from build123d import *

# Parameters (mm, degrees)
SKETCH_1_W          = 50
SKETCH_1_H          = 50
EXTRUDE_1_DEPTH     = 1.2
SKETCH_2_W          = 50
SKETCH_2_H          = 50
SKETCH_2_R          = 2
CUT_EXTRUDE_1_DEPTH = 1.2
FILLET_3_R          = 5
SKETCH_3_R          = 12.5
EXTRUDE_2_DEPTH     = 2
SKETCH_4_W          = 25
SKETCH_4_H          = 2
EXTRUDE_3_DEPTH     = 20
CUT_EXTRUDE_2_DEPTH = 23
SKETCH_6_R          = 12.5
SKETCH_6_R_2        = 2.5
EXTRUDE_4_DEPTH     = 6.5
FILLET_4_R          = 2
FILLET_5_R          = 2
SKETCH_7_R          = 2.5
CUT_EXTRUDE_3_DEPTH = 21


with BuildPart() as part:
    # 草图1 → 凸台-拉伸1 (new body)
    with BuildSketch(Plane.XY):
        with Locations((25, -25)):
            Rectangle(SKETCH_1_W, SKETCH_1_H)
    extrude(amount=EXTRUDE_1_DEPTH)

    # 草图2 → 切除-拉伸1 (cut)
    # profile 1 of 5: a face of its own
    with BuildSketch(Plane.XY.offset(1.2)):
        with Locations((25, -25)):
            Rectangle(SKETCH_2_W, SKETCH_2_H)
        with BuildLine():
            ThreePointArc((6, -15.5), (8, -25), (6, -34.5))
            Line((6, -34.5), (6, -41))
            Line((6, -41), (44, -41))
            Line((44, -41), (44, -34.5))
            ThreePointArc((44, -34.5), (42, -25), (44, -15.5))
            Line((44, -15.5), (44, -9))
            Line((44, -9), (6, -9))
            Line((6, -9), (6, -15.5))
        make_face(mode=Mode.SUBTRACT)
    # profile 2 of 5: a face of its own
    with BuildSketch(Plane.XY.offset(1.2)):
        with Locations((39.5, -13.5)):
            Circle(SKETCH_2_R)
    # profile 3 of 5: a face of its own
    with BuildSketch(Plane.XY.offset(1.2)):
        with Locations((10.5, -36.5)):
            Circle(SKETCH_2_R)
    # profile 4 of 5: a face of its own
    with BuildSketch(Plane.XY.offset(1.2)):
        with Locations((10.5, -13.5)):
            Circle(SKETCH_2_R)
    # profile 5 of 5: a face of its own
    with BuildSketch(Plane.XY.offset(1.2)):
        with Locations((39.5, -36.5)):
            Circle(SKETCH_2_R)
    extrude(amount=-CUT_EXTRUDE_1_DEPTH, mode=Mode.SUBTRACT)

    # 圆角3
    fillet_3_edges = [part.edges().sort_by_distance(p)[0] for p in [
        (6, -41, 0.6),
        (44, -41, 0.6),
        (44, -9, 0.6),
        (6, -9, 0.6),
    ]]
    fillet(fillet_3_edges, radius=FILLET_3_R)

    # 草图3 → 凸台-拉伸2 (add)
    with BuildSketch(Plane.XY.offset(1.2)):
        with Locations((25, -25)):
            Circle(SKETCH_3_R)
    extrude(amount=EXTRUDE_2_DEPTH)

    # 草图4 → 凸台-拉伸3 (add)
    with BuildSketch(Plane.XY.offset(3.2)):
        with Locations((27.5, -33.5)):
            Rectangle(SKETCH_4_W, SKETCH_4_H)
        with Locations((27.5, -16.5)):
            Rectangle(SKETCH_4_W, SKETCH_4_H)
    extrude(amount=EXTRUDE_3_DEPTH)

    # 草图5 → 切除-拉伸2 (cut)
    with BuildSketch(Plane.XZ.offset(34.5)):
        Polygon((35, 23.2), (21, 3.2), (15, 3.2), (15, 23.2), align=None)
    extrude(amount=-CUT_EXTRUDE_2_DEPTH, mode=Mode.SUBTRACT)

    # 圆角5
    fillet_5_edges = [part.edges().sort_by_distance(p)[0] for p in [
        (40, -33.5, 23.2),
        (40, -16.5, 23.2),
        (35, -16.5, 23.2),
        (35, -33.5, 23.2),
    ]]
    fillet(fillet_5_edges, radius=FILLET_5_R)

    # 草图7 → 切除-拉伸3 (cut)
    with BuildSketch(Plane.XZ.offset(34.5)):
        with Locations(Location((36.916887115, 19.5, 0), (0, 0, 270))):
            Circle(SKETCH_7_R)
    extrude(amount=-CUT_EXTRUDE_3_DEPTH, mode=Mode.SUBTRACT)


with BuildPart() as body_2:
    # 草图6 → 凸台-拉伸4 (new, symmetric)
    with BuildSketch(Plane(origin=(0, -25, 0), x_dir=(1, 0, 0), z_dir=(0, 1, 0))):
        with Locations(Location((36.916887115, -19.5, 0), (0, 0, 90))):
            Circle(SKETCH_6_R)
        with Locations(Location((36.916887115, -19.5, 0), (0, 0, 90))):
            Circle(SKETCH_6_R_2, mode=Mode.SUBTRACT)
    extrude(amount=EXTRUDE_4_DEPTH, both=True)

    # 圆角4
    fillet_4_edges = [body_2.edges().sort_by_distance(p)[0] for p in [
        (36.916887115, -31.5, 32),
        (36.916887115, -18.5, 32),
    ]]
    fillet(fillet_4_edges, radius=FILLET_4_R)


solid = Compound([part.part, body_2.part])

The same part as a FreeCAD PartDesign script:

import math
import FreeCAD as App
import Part
import Sketcher
from FreeCAD import Vector


def edges_at(feature, points):
    """Names of the edges that pass closest to the given points."""
    edges = feature.Shape.Edges
    near = lambda p: min(range(len(edges)), key=lambda i: edges[i].distToShape(Part.Vertex(*p))[0])
    return sorted({f"Edge{near(p) + 1}" for p in points})

doc = App.newDocument("Part")
params = doc.addObject("Spreadsheet::Sheet", "Params")
for row, (alias, value) in enumerate([
    ("sketch1_width", "50 mm"),
    ("pad1_length", "1.2 mm"),
    ("sketch2_diameter", "4 mm"),
    ("sketch2_width", "50 mm"),
    ("sketch2_width2", "38 mm"),
    ("sketch2_height", "6.5 mm"),
    ("pocket1_length", "1.2 mm"),
    ("fillet_radius", "5 mm"),
    ("sketch3_diameter", "25 mm"),
    ("pad2_length", "2 mm"),
    ("sketch4_width", "25 mm"),
    ("sketch4_height", "2 mm"),
    ("pad3_length", "20 mm"),
    ("sketch5_width", "20 mm"),
    ("sketch5_width2", "6 mm"),
    ("pocket2_length", "23 mm"),
    ("fillet2_radius", "2 mm"),
    ("sketch6_diameter", "5 mm"),
    ("pocket3_length", "21 mm"),
    ("sketch7_diameter", "25 mm"),
    ("sketch7_diameter2", "5 mm"),
    ("pad4_length", "13 mm"),
    ("fillet3_radius", "2 mm"),
], start=1):
    params.set(f"A{row}", alias)
    params.set(f"B{row}", "=" + value)
    params.setAlias(f"B{row}", alias)

body = doc.addObject("PartDesign::Body", "Body")

# Sketch on XY plane
sketch1 = doc.addObject("Sketcher::SketchObject", "Sketch")
body.addObject(sketch1)
sketch1.AttachmentSupport = (doc.XY_Plane, [""])
sketch1.MapMode = "FlatFace"
sketch1.addGeometry(Part.LineSegment(Vector(0, 0, 0), Vector(0, -50, 0)), False)
sketch1.addGeometry(Part.LineSegment(Vector(0, -50, 0), Vector(50, -50, 0)), False)
sketch1.addGeometry(Part.LineSegment(Vector(50, -50, 0), Vector(50, 0, 0)), False)
sketch1.addGeometry(Part.LineSegment(Vector(50, 0, 0), Vector(0, 0, 0)), False)
sketch1.addConstraint(Sketcher.Constraint("Coincident", 0, 2, 1, 1))
sketch1.addConstraint(Sketcher.Constraint("Coincident", 1, 2, 2, 1))
sketch1.addConstraint(Sketcher.Constraint("Coincident", 2, 2, 3, 1))
sketch1.addConstraint(Sketcher.Constraint("Coincident", 3, 2, 0, 1))
sketch1.addConstraint(Sketcher.Constraint("Vertical", 0))
sketch1.addConstraint(Sketcher.Constraint("Horizontal", 1))
sketch1.addConstraint(Sketcher.Constraint("Vertical", 2))
sketch1.addConstraint(Sketcher.Constraint("Horizontal", 3))
sketch1.addConstraint(Sketcher.Constraint("Coincident", 3, 2, -1, 1))
sketch1.addConstraint(Sketcher.Constraint("Equal", 3, 0))
sketch1.addConstraint(Sketcher.Constraint("DistanceX", 1, 1, 1, 2, 50.0))
sketch1.setExpression("Constraints[10]", "Params.sketch1_width")
pad1 = doc.addObject("PartDesign::Pad", "Pad")
body.addObject(pad1)
pad1.Profile = sketch1
pad1.setExpression("Length", "Params.pad1_length")

# Sketch on XY plane
sketch2 = doc.addObject("Sketcher::SketchObject", "Sketch001")
body.addObject(sketch2)
sketch2.AttachmentSupport = (doc.XY_Plane, [""])
sketch2.MapMode = "FlatFace"
sketch2.AttachmentOffset = App.Placement(Vector(0, 0, 1.2), App.Rotation())
sketch2.addGeometry(Part.LineSegment(Vector(0, 0, 0), Vector(0, -50, 0)), False)
sketch2.addGeometry(Part.LineSegment(Vector(0, -50, 0), Vector(50, -50, 0)), False)
sketch2.addGeometry(Part.LineSegment(Vector(50, -50, 0), Vector(50, 0, 0)), False)
sketch2.addGeometry(Part.LineSegment(Vector(50, 0, 0), Vector(0, 0, 0)), False)
sketch2.addGeometry(Part.ArcOfCircle(Part.Circle(Vector(-15.6, -25, 0), Vector(0, 0, 1), 23.6), math.radians(-24), math.radians(24)), False)
sketch2.addGeometry(Part.LineSegment(Vector(6, -15.5, 0), Vector(6, -9, 0)), False)
sketch2.addGeometry(Part.LineSegment(Vector(6, -9, 0), Vector(44, -9, 0)), False)
sketch2.addGeometry(Part.LineSegment(Vector(44, -9, 0), Vector(44, -15.5, 0)), False)
sketch2.addGeometry(Part.ArcOfCircle(Part.Circle(Vector(65.6, -25, 0), Vector(0, 0, 1), 23.6), math.radians(156), math.radians(204)), False)
sketch2.addGeometry(Part.LineSegment(Vector(44, -34.5, 0), Vector(44, -41, 0)), False)
sketch2.addGeometry(Part.LineSegment(Vector(44, -41, 0), Vector(6, -41, 0)), False)
sketch2.addGeometry(Part.LineSegment(Vector(6, -41, 0), Vector(6, -34.5, 0)), False)
sketch2.addGeometry(Part.Circle(Vector(39.5, -13.5, 0), Vector(0, 0, 1), 2), False)
sketch2.addGeometry(Part.Circle(Vector(10.5, -36.5, 0), Vector(0, 0, 1), 2), False)
sketch2.addGeometry(Part.Circle(Vector(10.5, -13.5, 0), Vector(0, 0, 1), 2), False)
sketch2.addGeometry(Part.Circle(Vector(39.5, -36.5, 0), Vector(0, 0, 1), 2), False)
sketch2.addConstraint(Sketcher.Constraint("Coincident", 0, 2, 1, 1))
sketch2.addConstraint(Sketcher.Constraint("Coincident", 1, 2, 2, 1))
sketch2.addConstraint(Sketcher.Constraint("Coincident", 2, 2, 3, 1))
sketch2.addConstraint(Sketcher.Constraint("Coincident", 3, 2, 0, 1))
sketch2.addConstraint(Sketcher.Constraint("Coincident", 4, 2, 5, 1))
sketch2.addConstraint(Sketcher.Constraint("Coincident", 5, 2, 6, 1))
sketch2.addConstraint(Sketcher.Constraint("Coincident", 6, 2, 7, 1))
sketch2.addConstraint(Sketcher.Constraint("Coincident", 7, 2, 8, 1))
sketch2.addConstraint(Sketcher.Constraint("Coincident", 8, 2, 9, 1))
sketch2.addConstraint(Sketcher.Constraint("Coincident", 9, 2, 10, 1))
sketch2.addConstraint(Sketcher.Constraint("Coincident", 10, 2, 11, 1))
sketch2.addConstraint(Sketcher.Constraint("Coincident", 11, 2, 4, 1))
sketch2.addConstraint(Sketcher.Constraint("Vertical", 0))
sketch2.addConstraint(Sketcher.Constraint("Horizontal", 1))
sketch2.addConstraint(Sketcher.Constraint("Vertical", 2))
sketch2.addConstraint(Sketcher.Constraint("Horizontal", 3))
sketch2.addConstraint(Sketcher.Constraint("Vertical", 5))
sketch2.addConstraint(Sketcher.Constraint("Horizontal", 6))
sketch2.addConstraint(Sketcher.Constraint("Vertical", 7))
sketch2.addConstraint(Sketcher.Constraint("Vertical", 9))
sketch2.addConstraint(Sketcher.Constraint("Horizontal", 10))
sketch2.addConstraint(Sketcher.Constraint("Vertical", 11))
sketch2.addConstraint(Sketcher.Constraint("Coincident", 3, 2, -1, 1))
sketch2.addConstraint(Sketcher.Constraint("Equal", 4, 8))
sketch2.addConstraint(Sketcher.Constraint("Equal", 12, 13))
sketch2.addConstraint(Sketcher.Constraint("Equal", 13, 14))
sketch2.addConstraint(Sketcher.Constraint("Equal", 14, 15))
sketch2.addConstraint(Sketcher.Constraint("Horizontal", 4, 3, 8, 3))
sketch2.addConstraint(Sketcher.Constraint("Horizontal", 12, 3, 14, 3))
sketch2.addConstraint(Sketcher.Constraint("Horizontal", 13, 3, 15, 3))
sketch2.addConstraint(Sketcher.Constraint("Horizontal", 4, 2, 7, 2))
sketch2.addConstraint(Sketcher.Constraint("Horizontal", 8, 2, 11, 2))
sketch2.addConstraint(Sketcher.Constraint("Vertical", 13, 3, 14, 3))
sketch2.addConstraint(Sketcher.Constraint("Vertical", 12, 3, 15, 3))
sketch2.addConstraint(Sketcher.Constraint("Vertical", 7, 2, 8, 2))
sketch2.addConstraint(Sketcher.Constraint("Equal", 3, 0))
sketch2.addConstraint(Sketcher.Constraint("Equal", 7, 9))
sketch2.addConstraint(Sketcher.Constraint("Diameter", 12, 4.0))
sketch2.addConstraint(Sketcher.Constraint("DistanceX", 1, 1, 1, 2, 50.0))
sketch2.addConstraint(Sketcher.Constraint("DistanceX", 6, 1, 6, 2, 38.0))
sketch2.addConstraint(Sketcher.Constraint("DistanceY", 5, 1, 5, 2, 6.5))
sketch2.addConstraint(Sketcher.Constraint("DistanceY", 4, 3, -1, 1, 25.0))
sketch2.addConstraint(Sketcher.Constraint("DistanceX", -1, 1, 4, 2, 6.0))
sketch2.addConstraint(Sketcher.Constraint("DistanceY", 5, 2, -1, 1, 9.0))
sketch2.addConstraint(Sketcher.Constraint("DistanceX", 13, 3, 12, 3, 29.0))
sketch2.addConstraint(Sketcher.Constraint("DistanceY", 13, 3, 12, 3, 23.0))
sketch2.addConstraint(Sketcher.Constraint("DistanceY", 4, 2, 14, 3, 2.0))
sketch2.addConstraint(Sketcher.Constraint("DistanceX", -1, 1, 12, 3, 39.5))
sketch2.addConstraint(Sketcher.Constraint("Radius", 4, 23.5625))
sketch2.setExpression("Constraints[37]", "Params.sketch2_diameter")
sketch2.setExpression("Constraints[38]", "Params.sketch2_width")
sketch2.setExpression("Constraints[39]", "Params.sketch2_width2")
sketch2.setExpression("Constraints[40]", "Params.sketch2_height")
pocket1 = doc.addObject("PartDesign::Pocket", "Pocket")
body.addObject(pocket1)
pocket1.Profile = sketch2
pocket1.setExpression("Length", "Params.pocket1_length")
doc.recompute()

fillet = doc.addObject("PartDesign::Fillet", "Fillet")
body.addObject(fillet)
fillet.Base = (pocket1, edges_at(pocket1, [
    (6, -41, 0.6),
    (44, -41, 0.6),
    (44, -9, 0.6),
    (6, -9, 0.6),
]))
fillet.setExpression("Radius", "Params.fillet_radius")

# Sketch on XY plane
sketch3 = doc.addObject("Sketcher::SketchObject", "Sketch002")
body.addObject(sketch3)
sketch3.AttachmentSupport = (doc.XY_Plane, [""])
sketch3.MapMode = "FlatFace"
sketch3.AttachmentOffset = App.Placement(Vector(0, 0, 1.2), App.Rotation())
sketch3.addGeometry(Part.Circle(Vector(25, -25, 0), Vector(0, 0, 1), 12), False)
sketch3.addConstraint(Sketcher.Constraint("Diameter", 0, 25.0))
sketch3.addConstraint(Sketcher.Constraint("DistanceX", -1, 1, 0, 3, 25.0))
sketch3.addConstraint(Sketcher.Constraint("DistanceY", 0, 3, -1, 1, 25.0))
sketch3.setExpression("Constraints[0]", "Params.sketch3_diameter")
pad2 = doc.addObject("PartDesign::Pad", "Pad001")
body.addObject(pad2)
pad2.Profile = sketch3
pad2.setExpression("Length", "Params.pad2_length")

# Sketch on XY plane
sketch4 = doc.addObject("Sketcher::SketchObject", "Sketch003")
body.addObject(sketch4)
sketch4.AttachmentSupport = (doc.XY_Plane, [""])
sketch4.MapMode = "FlatFace"
sketch4.AttachmentOffset = App.Placement(Vector(0, 0, 3.2), App.Rotation())
sketch4.addGeometry(Part.LineSegment(Vector(15, -32.5, 0), Vector(15, -34.5, 0)), False)
sketch4.addGeometry(Part.LineSegment(Vector(15, -34.5, 0), Vector(40, -34.5, 0)), False)
sketch4.addGeometry(Part.LineSegment(Vector(40, -34.5, 0), Vector(40, -32.5, 0)), False)
sketch4.addGeometry(Part.LineSegment(Vector(40, -32.5, 0), Vector(15, -32.5, 0)), False)
sketch4.addGeometry(Part.LineSegment(Vector(15, -15.5, 0), Vector(15, -17.5, 0)), False)
sketch4.addGeometry(Part.LineSegment(Vector(15, -17.5, 0), Vector(40, -17.5, 0)), False)
sketch4.addGeometry(Part.LineSegment(Vector(40, -17.5, 0), Vector(40, -15.5, 0)), False)
sketch4.addGeometry(Part.LineSegment(Vector(40, -15.5, 0), Vector(15, -15.5, 0)), False)
sketch4.addConstraint(Sketcher.Constraint("Coincident", 0, 2, 1, 1))
sketch4.addConstraint(Sketcher.Constraint("Coincident", 1, 2, 2, 1))
sketch4.addConstraint(Sketcher.Constraint("Coincident", 2, 2, 3, 1))
sketch4.addConstraint(Sketcher.Constraint("Coincident", 3, 2, 0, 1))
sketch4.addConstraint(Sketcher.Constraint("Coincident", 4, 2, 5, 1))
sketch4.addConstraint(Sketcher.Constraint("Coincident", 5, 2, 6, 1))
sketch4.addConstraint(Sketcher.Constraint("Coincident", 6, 2, 7, 1))
sketch4.addConstraint(Sketcher.Constraint("Coincident", 7, 2, 4, 1))
sketch4.addConstraint(Sketcher.Constraint("Vertical", 0))
sketch4.addConstraint(Sketcher.Constraint("Horizontal", 1))
sketch4.addConstraint(Sketcher.Constraint("Vertical", 2))
sketch4.addConstraint(Sketcher.Constraint("Horizontal", 3))
sketch4.addConstraint(Sketcher.Constraint("Vertical", 4))
sketch4.addConstraint(Sketcher.Constraint("Horizontal", 5))
sketch4.addConstraint(Sketcher.Constraint("Vertical", 6))
sketch4.addConstraint(Sketcher.Constraint("Horizontal", 7))
sketch4.addConstraint(Sketcher.Constraint("Vertical", 3, 2, 4, 2))
sketch4.addConstraint(Sketcher.Constraint("Vertical", 2, 2, 5, 2))
sketch4.addConstraint(Sketcher.Constraint("Equal", 2, 4))
sketch4.addConstraint(Sketcher.Constraint("DistanceX", 1, 1, 1, 2, 25.0))
sketch4.addConstraint(Sketcher.Constraint("DistanceY", 0, 2, 0, 1, 2.0))
sketch4.addConstraint(Sketcher.Constraint("DistanceX", -1, 1, 0, 2, 15.0))
sketch4.addConstraint(Sketcher.Constraint("DistanceY", 3, 2, 4, 2, 15.0))
sketch4.addConstraint(Sketcher.Constraint("DistanceY", 0, 2, -1, 1, 34.5))
sketch4.setExpression("Constraints[19]", "Params.sketch4_width")
sketch4.setExpression("Constraints[20]", "Params.sketch4_height")
pad3 = doc.addObject("PartDesign::Pad", "Pad002")
body.addObject(pad3)
pad3.Profile = sketch4
pad3.setExpression("Length", "Params.pad3_length")

# Sketch on XZ plane
sketch5 = doc.addObject("Sketcher::SketchObject", "Sketch004")
body.addObject(sketch5)
sketch5.AttachmentSupport = (doc.XZ_Plane, [""])
sketch5.MapMode = "FlatFace"
sketch5.AttachmentOffset = App.Placement(Vector(0, 0, 34.5), App.Rotation())
sketch5.addGeometry(Part.LineSegment(Vector(21, 3, 0), Vector(35, 23, 0)), False)
sketch5.addGeometry(Part.LineSegment(Vector(35, 23, 0), Vector(15, 23, 0)), False)
sketch5.addGeometry(Part.LineSegment(Vector(15, 23, 0), Vector(15, 3, 0)), False)
sketch5.addGeometry(Part.LineSegment(Vector(15, 3, 0), Vector(21, 3, 0)), False)
sketch5.addConstraint(Sketcher.Constraint("Coincident", 0, 2, 1, 1))
sketch5.addConstraint(Sketcher.Constraint("Coincident", 1, 2, 2, 1))
sketch5.addConstraint(Sketcher.Constraint("Coincident", 2, 2, 3, 1))
sketch5.addConstraint(Sketcher.Constraint("Coincident", 3, 2, 0, 1))
sketch5.addConstraint(Sketcher.Constraint("Horizontal", 1))
sketch5.addConstraint(Sketcher.Constraint("Vertical", 2))
sketch5.addConstraint(Sketcher.Constraint("Horizontal", 3))
sketch5.addConstraint(Sketcher.Constraint("Equal", 1, 2))
sketch5.addConstraint(Sketcher.Constraint("DistanceX", 1, 2, 1, 1, 20.0))
sketch5.addConstraint(Sketcher.Constraint("DistanceX", 3, 1, 3, 2, 6.0))
sketch5.addConstraint(Sketcher.Constraint("DistanceX", -1, 1, 0, 2, 35.0))
sketch5.addConstraint(Sketcher.Constraint("DistanceY", -1, 1, 0, 2, 23.2))
sketch5.setExpression("Constraints[8]", "Params.sketch5_width")
sketch5.setExpression("Constraints[9]", "Params.sketch5_width2")
pocket2 = doc.addObject("PartDesign::Pocket", "Pocket001")
body.addObject(pocket2)
pocket2.Profile = sketch5
pocket2.setExpression("Length", "Params.pocket2_length")
doc.recompute()

fillet2 = doc.addObject("PartDesign::Fillet", "Fillet001")
body.addObject(fillet2)
fillet2.Base = (pocket2, edges_at(pocket2, [
    (40, -33.5, 23.2),
    (40, -16.5, 23.2),
    (35, -16.5, 23.2),
    (35, -33.5, 23.2),
]))
fillet2.setExpression("Radius", "Params.fillet2_radius")

# Sketch on XZ plane
sketch6 = doc.addObject("Sketcher::SketchObject", "Sketch005")
body.addObject(sketch6)
sketch6.AttachmentSupport = (doc.XZ_Plane, [""])
sketch6.MapMode = "FlatFace"
sketch6.AttachmentOffset = App.Placement(Vector(0, 0, 34.5), App.Rotation())
sketch6.addGeometry(Part.Circle(Vector(36.9, 19.5, 0), Vector(0, 0, 1), 2.5), False)
sketch6.addConstraint(Sketcher.Constraint("Diameter", 0, 5.0))
sketch6.addConstraint(Sketcher.Constraint("DistanceY", -1, 1, 0, 3, 19.5))
sketch6.addConstraint(Sketcher.Constraint("DistanceX", -1, 1, 0, 3, 36.916887))
sketch6.setExpression("Constraints[0]", "Params.sketch6_diameter")
pocket3 = doc.addObject("PartDesign::Pocket", "Pocket002")
body.addObject(pocket3)
pocket3.Profile = sketch6
pocket3.setExpression("Length", "Params.pocket3_length")
body2 = doc.addObject("PartDesign::Body", "Body001")

# Sketch on XZ plane
sketch7 = doc.addObject("Sketcher::SketchObject", "Sketch006")
body2.addObject(sketch7)
sketch7.AttachmentSupport = (doc.getObject("XZ_Plane001"), [""])
sketch7.MapMode = "FlatFace"
sketch7.AttachmentOffset = App.Placement(Vector(0, 0, 25), App.Rotation())
sketch7.addGeometry(Part.Circle(Vector(36.9, 19.5, 0), Vector(0, 0, 1), 12.5), False)
sketch7.addGeometry(Part.Circle(Vector(36.9, 19.5, 0), Vector(0, 0, 1), 2.5), False)
sketch7.addConstraint(Sketcher.Constraint("Coincident", 1, 3, 0, 3))
sketch7.addConstraint(Sketcher.Constraint("Diameter", 0, 25.0))
sketch7.addConstraint(Sketcher.Constraint("Diameter", 1, 5.0))
sketch7.addConstraint(Sketcher.Constraint("DistanceY", -1, 1, 0, 3, 19.5))
sketch7.addConstraint(Sketcher.Constraint("DistanceX", -1, 1, 0, 3, 36.916887))
sketch7.setExpression("Constraints[1]", "Params.sketch7_diameter")
sketch7.setExpression("Constraints[2]", "Params.sketch7_diameter2")
pad4 = doc.addObject("PartDesign::Pad", "Pad003")
body2.addObject(pad4)
pad4.Profile = sketch7
pad4.setExpression("Length", "Params.pad4_length")
pad4.Midplane = True
doc.recompute()

fillet3 = doc.addObject("PartDesign::Fillet", "Fillet002")
body2.addObject(fillet3)
fillet3.Base = (pad4, edges_at(pad4, [(36.917, -31.5, 32), (36.917, -18.5, 32)]))
fillet3.setExpression("Radius", "Params.fillet3_radius")

doc.recompute()
